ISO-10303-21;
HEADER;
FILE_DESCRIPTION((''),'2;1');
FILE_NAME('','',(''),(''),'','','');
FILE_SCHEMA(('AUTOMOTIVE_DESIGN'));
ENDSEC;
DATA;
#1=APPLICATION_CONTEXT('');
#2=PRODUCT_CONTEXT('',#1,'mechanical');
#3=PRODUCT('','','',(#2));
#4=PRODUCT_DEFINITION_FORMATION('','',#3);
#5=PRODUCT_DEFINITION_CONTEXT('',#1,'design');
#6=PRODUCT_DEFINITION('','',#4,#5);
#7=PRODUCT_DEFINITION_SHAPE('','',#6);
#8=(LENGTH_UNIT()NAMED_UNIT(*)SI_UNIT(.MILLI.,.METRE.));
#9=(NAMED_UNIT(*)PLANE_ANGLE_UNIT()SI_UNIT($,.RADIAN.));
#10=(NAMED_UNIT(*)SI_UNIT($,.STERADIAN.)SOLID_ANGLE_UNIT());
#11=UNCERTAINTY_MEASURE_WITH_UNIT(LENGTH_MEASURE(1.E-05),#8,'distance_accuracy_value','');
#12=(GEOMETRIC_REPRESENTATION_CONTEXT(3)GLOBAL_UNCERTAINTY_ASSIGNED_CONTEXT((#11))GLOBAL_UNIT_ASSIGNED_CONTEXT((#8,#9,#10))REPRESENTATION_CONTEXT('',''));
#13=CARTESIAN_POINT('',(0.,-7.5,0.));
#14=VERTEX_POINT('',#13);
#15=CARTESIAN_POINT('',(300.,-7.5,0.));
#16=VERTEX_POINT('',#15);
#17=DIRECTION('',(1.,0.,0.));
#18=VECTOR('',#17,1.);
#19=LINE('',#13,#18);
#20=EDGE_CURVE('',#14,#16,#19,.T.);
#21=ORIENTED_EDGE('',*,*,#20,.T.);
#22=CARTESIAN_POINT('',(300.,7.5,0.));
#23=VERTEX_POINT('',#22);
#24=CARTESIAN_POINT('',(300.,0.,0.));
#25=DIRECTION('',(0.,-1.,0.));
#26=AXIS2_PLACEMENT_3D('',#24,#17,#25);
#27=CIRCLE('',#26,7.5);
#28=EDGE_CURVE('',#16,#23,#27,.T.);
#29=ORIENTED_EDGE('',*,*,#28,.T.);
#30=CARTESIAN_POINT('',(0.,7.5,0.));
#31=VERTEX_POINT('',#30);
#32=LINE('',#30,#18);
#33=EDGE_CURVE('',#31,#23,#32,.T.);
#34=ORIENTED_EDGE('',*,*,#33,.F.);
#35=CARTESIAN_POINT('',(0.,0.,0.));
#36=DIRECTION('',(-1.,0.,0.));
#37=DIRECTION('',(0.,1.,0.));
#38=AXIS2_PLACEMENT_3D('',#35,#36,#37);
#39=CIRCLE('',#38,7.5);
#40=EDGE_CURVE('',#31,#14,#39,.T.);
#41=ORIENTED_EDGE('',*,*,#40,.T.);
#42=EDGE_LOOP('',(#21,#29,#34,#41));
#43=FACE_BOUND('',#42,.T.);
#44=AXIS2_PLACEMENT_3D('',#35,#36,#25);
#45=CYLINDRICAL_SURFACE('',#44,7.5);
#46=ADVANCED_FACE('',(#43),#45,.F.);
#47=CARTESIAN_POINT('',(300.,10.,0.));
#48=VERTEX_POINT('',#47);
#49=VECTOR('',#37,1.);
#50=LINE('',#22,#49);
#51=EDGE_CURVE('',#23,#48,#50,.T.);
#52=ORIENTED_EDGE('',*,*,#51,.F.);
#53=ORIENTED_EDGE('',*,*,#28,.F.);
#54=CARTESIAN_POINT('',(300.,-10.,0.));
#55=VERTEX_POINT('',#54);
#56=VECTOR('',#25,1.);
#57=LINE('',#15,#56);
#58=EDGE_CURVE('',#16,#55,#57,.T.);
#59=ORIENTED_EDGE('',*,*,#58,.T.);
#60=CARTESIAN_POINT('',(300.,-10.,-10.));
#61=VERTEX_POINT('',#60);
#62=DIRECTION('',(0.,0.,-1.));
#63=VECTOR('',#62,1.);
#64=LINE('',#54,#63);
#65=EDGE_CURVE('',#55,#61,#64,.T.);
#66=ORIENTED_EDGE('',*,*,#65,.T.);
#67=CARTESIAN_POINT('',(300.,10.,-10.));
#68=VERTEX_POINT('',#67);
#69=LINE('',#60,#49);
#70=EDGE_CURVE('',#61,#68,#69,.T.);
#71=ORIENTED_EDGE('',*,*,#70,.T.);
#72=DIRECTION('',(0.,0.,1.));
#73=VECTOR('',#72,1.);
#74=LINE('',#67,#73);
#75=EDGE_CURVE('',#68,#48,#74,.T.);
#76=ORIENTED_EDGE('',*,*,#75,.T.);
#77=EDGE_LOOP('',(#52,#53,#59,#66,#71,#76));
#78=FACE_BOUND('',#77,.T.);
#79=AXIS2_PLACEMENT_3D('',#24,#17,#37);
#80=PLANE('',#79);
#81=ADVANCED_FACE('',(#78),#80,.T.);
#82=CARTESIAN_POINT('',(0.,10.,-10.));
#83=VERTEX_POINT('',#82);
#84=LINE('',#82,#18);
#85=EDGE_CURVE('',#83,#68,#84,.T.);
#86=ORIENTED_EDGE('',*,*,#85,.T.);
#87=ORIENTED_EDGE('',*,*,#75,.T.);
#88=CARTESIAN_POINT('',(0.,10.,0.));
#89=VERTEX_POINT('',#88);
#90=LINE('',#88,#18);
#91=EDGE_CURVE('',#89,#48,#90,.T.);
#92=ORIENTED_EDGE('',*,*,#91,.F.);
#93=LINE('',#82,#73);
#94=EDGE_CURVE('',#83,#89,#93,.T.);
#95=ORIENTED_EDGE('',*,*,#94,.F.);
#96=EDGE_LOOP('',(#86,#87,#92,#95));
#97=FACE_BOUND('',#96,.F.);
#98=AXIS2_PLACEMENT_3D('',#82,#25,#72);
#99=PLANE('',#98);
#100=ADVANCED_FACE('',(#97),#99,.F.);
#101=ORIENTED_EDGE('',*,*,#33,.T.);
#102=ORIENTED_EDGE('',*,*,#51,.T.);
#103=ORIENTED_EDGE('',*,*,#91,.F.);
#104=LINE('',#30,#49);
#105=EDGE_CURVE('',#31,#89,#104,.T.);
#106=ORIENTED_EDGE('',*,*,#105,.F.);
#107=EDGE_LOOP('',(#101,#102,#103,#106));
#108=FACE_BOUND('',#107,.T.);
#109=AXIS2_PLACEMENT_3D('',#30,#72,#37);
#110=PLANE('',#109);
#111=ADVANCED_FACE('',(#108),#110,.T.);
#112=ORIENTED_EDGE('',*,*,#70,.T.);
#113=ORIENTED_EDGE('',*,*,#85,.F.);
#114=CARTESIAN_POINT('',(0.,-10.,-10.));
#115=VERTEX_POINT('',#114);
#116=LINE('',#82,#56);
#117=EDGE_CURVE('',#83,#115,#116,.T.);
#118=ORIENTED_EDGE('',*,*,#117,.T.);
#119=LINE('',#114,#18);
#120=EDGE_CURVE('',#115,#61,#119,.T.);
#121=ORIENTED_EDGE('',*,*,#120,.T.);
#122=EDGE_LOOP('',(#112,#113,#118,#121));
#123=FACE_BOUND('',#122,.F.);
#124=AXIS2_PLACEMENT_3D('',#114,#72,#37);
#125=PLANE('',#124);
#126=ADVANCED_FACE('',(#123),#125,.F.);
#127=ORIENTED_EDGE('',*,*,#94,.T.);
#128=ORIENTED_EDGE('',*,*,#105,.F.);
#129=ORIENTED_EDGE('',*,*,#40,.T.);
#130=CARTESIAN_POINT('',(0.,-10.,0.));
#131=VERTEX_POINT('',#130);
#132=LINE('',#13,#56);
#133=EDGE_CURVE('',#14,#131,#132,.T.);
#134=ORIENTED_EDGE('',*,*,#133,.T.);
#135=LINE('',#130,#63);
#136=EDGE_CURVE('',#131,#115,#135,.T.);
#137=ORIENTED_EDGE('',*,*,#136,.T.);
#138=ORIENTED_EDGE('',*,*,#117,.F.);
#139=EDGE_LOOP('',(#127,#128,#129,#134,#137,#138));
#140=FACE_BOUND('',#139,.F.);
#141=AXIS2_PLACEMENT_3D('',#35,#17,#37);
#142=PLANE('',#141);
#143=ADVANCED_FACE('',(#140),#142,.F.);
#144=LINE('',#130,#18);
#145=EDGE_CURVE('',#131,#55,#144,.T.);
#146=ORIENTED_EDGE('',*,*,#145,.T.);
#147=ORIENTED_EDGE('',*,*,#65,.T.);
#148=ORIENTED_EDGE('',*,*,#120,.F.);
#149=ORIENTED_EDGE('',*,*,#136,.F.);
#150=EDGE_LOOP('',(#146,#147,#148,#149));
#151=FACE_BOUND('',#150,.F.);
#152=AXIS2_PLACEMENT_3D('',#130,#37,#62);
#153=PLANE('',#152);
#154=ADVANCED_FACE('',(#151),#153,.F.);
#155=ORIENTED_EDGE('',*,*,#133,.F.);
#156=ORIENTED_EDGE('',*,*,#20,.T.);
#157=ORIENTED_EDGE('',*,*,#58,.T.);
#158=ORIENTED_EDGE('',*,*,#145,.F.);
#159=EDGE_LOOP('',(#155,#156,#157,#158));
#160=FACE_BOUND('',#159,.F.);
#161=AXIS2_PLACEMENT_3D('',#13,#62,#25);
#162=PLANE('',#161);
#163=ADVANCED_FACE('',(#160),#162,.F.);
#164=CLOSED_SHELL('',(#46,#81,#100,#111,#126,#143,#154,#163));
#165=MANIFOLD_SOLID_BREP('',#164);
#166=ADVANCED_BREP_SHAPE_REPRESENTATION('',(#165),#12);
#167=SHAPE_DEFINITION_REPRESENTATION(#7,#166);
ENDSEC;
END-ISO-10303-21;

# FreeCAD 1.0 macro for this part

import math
import FreeCAD as App
import Part
import Sketcher
Q = App.Units.Quantity

doc = App.newDocument("Part")
params = doc.addObject("Spreadsheet::Sheet", "Params")
for row, (alias, value) in enumerate([
    ("sketch1_radius", "7.5 mm"),
    ("sketch1_width", "20 mm"),
    ("sketch1_height", "10 mm"),
    ("pad1_length", "300 mm"),
], start=1):
    params.set(f"A{row}", alias)
    params.set(f"B{row}", "=" + value)
    params.setAlias(f"B{row}", alias)

body = doc.addObject("PartDesign::Body", "Body")

# Sketch on YZ plane
sketch1 = body.newObject("Sketcher::SketchObject", "Sketch")
sketch1.AttachmentSupport = (doc.getObject("YZ_Plane"), [""])
sketch1.MapMode = "FlatFace"
sketch1.addGeometry([
    Part.LineSegment(App.Vector(-7.5, 0, 0), App.Vector(-10, 0, 0)),  # 0
    Part.LineSegment(App.Vector(-10, 0, 0), App.Vector(-10, -10, 0)),  # 1
    Part.LineSegment(App.Vector(-10, -10, 0), App.Vector(10, -10, 0)),  # 2
    Part.LineSegment(App.Vector(10, -10, 0), App.Vector(10, 0, 0)),  # 3
    Part.LineSegment(App.Vector(10, 0, 0), App.Vector(7.5, 0, 0)),  # 4
    Part.ArcOfCircle(Part.Circle(App.Vector(0, 0, 0), App.Vector(0, 0, 1), 7.5), math.radians(180), math.radians(360)),  # 5
], False)
sketch1.addConstraint([
    Sketcher.Constraint("Coincident", 0, 2, 1, 1),
    Sketcher.Constraint("Coincident", 1, 2, 2, 1),
    Sketcher.Constraint("Coincident", 2, 2, 3, 1),
    Sketcher.Constraint("Coincident", 3, 2, 4, 1),
    Sketcher.Constraint("Coincident", 4, 2, 5, 2),
    Sketcher.Constraint("Coincident", 5, 1, 0, 1),
    Sketcher.Constraint("Horizontal", 0),
    Sketcher.Constraint("Vertical", 1),
    Sketcher.Constraint("Horizontal", 2),
    Sketcher.Constraint("Vertical", 3),
    Sketcher.Constraint("Horizontal", 4),
    Sketcher.Constraint("Coincident", 5, 3, -1, 1),
    Sketcher.Constraint("Symmetric", 0, 2, 3, 2, -1, 1),
    Sketcher.Constraint("PointOnObject", 0, 2, -1),
    Sketcher.Constraint("Radius", 5, Q("7.5 mm")),
    Sketcher.Constraint("DistanceX", 2, 1, 2, 2, Q("20 mm")),
    Sketcher.Constraint("DistanceY", 1, 2, 1, 1, Q("10 mm")),
])
sketch1.setExpression("Constraints[14]", "Params.sketch1_radius")
sketch1.setExpression("Constraints[15]", "Params.sketch1_width")
sketch1.setExpression("Constraints[16]", "Params.sketch1_height")
pad1 = body.newObject("PartDesign::Pad", "Pad")
pad1.Profile = sketch1
pad1.setExpression("Length", "Params.pad1_length")

doc.recompute()
